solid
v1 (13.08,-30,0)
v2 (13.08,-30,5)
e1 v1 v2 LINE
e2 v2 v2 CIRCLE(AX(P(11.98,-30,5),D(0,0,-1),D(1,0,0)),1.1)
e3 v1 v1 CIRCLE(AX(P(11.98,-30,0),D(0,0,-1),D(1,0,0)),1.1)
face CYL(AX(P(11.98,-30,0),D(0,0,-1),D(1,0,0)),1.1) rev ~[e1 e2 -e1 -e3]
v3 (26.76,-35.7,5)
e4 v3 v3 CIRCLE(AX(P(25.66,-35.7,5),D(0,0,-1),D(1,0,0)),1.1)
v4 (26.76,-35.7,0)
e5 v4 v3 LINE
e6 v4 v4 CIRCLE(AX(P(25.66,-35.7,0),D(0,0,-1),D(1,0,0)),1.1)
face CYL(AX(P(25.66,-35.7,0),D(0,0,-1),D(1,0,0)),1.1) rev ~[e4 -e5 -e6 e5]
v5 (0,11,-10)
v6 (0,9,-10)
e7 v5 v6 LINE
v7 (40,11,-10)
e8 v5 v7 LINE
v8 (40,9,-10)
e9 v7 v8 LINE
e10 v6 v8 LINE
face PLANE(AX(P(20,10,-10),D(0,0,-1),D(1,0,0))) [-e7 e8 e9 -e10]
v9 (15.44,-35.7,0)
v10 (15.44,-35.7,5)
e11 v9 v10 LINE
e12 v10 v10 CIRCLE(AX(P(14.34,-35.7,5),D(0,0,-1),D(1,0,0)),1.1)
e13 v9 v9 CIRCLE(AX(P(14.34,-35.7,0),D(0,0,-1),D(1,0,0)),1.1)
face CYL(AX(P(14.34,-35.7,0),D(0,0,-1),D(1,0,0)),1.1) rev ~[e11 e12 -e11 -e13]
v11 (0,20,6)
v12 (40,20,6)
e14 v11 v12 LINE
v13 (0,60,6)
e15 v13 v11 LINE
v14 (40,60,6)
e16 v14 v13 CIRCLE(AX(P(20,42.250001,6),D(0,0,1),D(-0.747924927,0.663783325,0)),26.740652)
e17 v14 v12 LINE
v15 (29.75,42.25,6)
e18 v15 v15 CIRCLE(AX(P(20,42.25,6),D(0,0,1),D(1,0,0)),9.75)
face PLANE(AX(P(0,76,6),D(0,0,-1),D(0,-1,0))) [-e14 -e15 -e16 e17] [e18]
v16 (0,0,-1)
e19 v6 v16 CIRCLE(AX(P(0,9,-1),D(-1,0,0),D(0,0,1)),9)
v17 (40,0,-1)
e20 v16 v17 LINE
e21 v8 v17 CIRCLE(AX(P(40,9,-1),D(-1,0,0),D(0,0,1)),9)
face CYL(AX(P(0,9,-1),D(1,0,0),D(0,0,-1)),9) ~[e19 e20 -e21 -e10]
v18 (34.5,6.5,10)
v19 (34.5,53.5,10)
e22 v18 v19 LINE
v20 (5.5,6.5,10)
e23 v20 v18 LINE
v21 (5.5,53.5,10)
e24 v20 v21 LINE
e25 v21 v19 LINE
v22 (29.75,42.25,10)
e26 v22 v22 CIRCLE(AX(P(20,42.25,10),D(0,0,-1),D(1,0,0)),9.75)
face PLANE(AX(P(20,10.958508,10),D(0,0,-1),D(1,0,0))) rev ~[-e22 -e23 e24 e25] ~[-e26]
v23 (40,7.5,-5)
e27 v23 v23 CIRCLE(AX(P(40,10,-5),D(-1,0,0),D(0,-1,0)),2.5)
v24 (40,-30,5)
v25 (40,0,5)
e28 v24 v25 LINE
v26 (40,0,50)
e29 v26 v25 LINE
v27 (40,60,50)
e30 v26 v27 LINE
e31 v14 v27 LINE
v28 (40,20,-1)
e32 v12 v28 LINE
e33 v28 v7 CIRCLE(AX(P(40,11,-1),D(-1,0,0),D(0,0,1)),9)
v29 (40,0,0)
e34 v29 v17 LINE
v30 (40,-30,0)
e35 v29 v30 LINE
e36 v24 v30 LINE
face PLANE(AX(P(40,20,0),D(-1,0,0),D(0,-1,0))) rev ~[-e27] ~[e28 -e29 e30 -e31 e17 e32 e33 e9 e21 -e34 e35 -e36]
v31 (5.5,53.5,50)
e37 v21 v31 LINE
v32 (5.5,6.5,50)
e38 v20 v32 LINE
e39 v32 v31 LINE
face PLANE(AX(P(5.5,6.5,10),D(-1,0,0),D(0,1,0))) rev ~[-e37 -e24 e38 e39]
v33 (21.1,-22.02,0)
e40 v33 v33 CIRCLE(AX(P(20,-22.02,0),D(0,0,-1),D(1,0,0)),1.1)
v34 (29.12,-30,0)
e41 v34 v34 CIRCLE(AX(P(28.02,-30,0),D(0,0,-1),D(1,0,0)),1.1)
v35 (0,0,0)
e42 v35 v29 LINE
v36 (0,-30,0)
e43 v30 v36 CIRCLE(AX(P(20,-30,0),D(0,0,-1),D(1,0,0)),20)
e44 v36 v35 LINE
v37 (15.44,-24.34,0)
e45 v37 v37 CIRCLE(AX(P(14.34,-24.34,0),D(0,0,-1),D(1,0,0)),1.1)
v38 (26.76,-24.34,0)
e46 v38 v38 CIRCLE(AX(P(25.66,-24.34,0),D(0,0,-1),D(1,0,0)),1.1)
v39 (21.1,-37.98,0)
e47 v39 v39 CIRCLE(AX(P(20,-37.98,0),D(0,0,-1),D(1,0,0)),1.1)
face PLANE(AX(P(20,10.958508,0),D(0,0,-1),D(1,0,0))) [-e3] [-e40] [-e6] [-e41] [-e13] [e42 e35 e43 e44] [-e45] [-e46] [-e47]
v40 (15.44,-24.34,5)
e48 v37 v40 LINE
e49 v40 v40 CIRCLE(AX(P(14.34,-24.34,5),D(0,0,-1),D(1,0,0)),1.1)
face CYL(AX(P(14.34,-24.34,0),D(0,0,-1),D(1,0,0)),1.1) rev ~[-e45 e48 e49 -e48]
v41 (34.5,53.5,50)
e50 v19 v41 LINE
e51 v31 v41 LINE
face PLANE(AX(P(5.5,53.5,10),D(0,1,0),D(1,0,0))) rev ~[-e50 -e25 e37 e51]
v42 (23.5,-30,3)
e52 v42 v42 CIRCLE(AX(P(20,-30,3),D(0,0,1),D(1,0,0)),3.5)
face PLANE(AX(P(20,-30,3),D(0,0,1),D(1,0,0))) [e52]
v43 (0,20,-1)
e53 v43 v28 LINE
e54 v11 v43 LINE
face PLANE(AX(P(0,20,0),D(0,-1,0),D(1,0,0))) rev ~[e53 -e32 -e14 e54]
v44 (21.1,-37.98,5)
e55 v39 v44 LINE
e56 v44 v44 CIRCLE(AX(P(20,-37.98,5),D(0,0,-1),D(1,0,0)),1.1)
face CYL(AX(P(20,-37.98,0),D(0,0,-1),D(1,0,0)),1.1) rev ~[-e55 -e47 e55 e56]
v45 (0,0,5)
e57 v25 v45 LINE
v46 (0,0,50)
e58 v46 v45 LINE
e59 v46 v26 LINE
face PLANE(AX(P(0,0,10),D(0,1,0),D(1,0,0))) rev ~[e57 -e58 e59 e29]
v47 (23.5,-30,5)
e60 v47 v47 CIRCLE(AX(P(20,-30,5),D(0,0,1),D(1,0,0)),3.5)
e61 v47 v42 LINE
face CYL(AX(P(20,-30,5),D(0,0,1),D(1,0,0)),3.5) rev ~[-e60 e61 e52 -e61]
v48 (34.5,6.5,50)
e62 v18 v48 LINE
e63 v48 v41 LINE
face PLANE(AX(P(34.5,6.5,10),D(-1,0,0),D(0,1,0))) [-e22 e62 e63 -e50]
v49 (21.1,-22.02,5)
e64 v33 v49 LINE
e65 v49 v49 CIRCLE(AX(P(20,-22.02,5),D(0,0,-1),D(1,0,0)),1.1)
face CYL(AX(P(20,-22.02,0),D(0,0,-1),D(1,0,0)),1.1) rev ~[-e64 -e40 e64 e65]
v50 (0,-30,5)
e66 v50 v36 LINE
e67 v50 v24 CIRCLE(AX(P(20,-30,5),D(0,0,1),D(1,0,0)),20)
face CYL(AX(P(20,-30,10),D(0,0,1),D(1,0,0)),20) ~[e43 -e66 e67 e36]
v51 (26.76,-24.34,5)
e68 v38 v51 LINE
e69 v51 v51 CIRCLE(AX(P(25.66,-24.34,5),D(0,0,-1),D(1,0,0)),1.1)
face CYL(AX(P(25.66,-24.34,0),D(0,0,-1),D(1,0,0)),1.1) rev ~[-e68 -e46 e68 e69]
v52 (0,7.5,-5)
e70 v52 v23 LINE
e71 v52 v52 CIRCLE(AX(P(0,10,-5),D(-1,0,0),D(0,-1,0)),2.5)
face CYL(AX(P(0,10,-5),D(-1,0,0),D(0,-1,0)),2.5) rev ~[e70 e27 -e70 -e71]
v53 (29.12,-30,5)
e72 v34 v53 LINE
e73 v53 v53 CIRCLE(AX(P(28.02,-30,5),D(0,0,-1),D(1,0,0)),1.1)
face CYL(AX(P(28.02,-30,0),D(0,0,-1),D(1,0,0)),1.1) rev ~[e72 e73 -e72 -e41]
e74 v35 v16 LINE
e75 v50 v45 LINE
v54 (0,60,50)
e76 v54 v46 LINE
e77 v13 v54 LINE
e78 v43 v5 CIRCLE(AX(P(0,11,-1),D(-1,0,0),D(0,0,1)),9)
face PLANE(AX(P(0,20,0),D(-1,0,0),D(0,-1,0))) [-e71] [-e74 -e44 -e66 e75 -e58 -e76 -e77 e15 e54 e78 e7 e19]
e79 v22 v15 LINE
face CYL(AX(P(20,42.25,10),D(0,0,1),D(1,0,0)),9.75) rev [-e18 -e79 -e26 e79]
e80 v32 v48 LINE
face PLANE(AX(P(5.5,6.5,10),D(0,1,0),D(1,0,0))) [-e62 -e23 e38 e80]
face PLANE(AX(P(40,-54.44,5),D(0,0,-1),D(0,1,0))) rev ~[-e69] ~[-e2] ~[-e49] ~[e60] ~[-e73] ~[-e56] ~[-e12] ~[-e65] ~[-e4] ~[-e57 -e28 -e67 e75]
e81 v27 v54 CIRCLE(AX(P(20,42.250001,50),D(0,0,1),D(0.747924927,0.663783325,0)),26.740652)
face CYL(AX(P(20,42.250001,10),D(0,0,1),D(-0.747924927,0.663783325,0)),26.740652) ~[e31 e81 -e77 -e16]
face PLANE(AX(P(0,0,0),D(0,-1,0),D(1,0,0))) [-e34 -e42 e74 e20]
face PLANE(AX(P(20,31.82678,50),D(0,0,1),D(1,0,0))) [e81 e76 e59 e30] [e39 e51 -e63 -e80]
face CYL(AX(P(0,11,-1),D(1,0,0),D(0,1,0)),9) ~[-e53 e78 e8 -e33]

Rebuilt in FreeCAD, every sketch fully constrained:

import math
import FreeCAD as App
import Part
import Sketcher
from FreeCAD import Vector
Q = App.Units.Quantity


def edges_at(feature, points):
    """Names of the edges that pass closest to the given points."""
    edges = feature.Shape.Edges
    near = lambda p: min(range(len(edges)), key=lambda i: edges[i].distToShape(Part.Vertex(*p))[0])
    return sorted({f"Edge{near(p) + 1}" for p in points})

doc = App.newDocument("Part")
body = doc.addObject("PartDesign::Body", "Body")

# Sketch on XY plane
sketch1 = doc.addObject("Sketcher::SketchObject", "Sketch")
body.addObject(sketch1)
sketch1.AttachmentSupport = (doc.XY_Plane, [""])
sketch1.MapMode = "FlatFace"
sketch1.AttachmentOffset = App.Placement(Vector(0, 0, 10), App.Rotation())
sketch1.addGeometry(Part.LineSegment(Vector(0, 0, 0), Vector(40, 0, 0)), False)
sketch1.addGeometry(Part.LineSegment(Vector(40, 0, 0), Vector(40, 60, 0)), False)
sketch1.addGeometry(Part.ArcOfCircle(Part.Circle(Vector(20, 42, 0), Vector(0, 0, 1), 27), math.radians(42), math.radians(138)), False)
sketch1.addGeometry(Part.LineSegment(Vector(0, 60, 0), Vector(0, 0, 0)), False)
sketch1.addGeometry(Part.LineSegment(Vector(34, 6, 0), Vector(6, 6, 0)), False)
sketch1.addGeometry(Part.LineSegment(Vector(6, 6, 0), Vector(6, 54, 0)), False)
sketch1.addGeometry(Part.LineSegment(Vector(6, 54, 0), Vector(34, 54, 0)), False)
sketch1.addGeometry(Part.LineSegment(Vector(34, 54, 0), Vector(34, 6, 0)), False)
sketch1.addConstraint(Sketcher.Constraint("Coincident", 0, 2, 1, 1))
sketch1.addConstraint(Sketcher.Constraint("Coincident", 1, 2, 2, 1))
sketch1.addConstraint(Sketcher.Constraint("Coincident", 2, 2, 3, 1))
sketch1.addConstraint(Sketcher.Constraint("Coincident", 3, 2, 0, 1))
sketch1.addConstraint(Sketcher.Constraint("Coincident", 4, 2, 5, 1))
sketch1.addConstraint(Sketcher.Constraint("Coincident", 5, 2, 6, 1))
sketch1.addConstraint(Sketcher.Constraint("Coincident", 6, 2, 7, 1))
sketch1.addConstraint(Sketcher.Constraint("Coincident", 7, 2, 4, 1))
sketch1.addConstraint(Sketcher.Constraint("Horizontal", 0))
sketch1.addConstraint(Sketcher.Constraint("Vertical", 1))
sketch1.addConstraint(Sketcher.Constraint("Vertical", 3))
sketch1.addConstraint(Sketcher.Constraint("Horizontal", 4))
sketch1.addConstraint(Sketcher.Constraint("Vertical", 5))
sketch1.addConstraint(Sketcher.Constraint("Horizontal", 6))
sketch1.addConstraint(Sketcher.Constraint("Vertical", 7))
sketch1.addConstraint(Sketcher.Constraint("Coincident", 3, 2, -1, 1))
sketch1.addConstraint(Sketcher.Constraint("Horizontal", 1, 2, 2, 2))
sketch1.addConstraint(Sketcher.Constraint("DistanceX", 0, 1, 0, 2, Q("40 mm")))
sketch1.addConstraint(Sketcher.Constraint("DistanceX", 4, 2, 4, 1, Q("29 mm")))
sketch1.addConstraint(Sketcher.Constraint("DistanceY", 1, 1, 1, 2, Q("60 mm")))
sketch1.addConstraint(Sketcher.Constraint("DistanceY", 5, 1, 5, 2, Q("47 mm")))
sketch1.addConstraint(Sketcher.Constraint("DistanceX", -1, 1, 4, 2, Q("5.5 mm")))
sketch1.addConstraint(Sketcher.Constraint("DistanceY", -1, 1, 4, 2, Q("6.5 mm")))
sketch1.addConstraint(Sketcher.Constraint("DistanceY", -1, 1, 2, 3, Q("42.250001 mm")))
pad1 = doc.addObject("PartDesign::Pad", "Pad")
body.addObject(pad1)
pad1.Profile = sketch1
pad1.Length = 40

# Sketch on XY plane
sketch2 = doc.addObject("Sketcher::SketchObject", "Sketch001")
body.addObject(sketch2)
sketch2.AttachmentSupport = (doc.XY_Plane, [""])
sketch2.MapMode = "FlatFace"
sketch2.AttachmentOffset = App.Placement(Vector(0, 0, 10), App.Rotation())
sketch2.addGeometry(Part.LineSegment(Vector(40, 60, 0), Vector(40, -30, 0)), False)
sketch2.addGeometry(Part.ArcOfCircle(Part.Circle(Vector(20, -30, 0), Vector(0, 0, 1), 20), math.radians(180), math.radians(360)), False)
sketch2.addGeometry(Part.LineSegment(Vector(0, -30, 0), Vector(0, 60, 0)), False)
sketch2.addGeometry(Part.ArcOfCircle(Part.Circle(Vector(20, 42, 0), Vector(0, 0, 1), 27), math.radians(42), math.radians(138)), False)
sketch2.addGeometry(Part.Circle(Vector(20, 42, 0), Vector(0, 0, 1), 10), False)
sketch2.addConstraint(Sketcher.Constraint("Tangent", 0, 2, 1, 2))
sketch2.addConstraint(Sketcher.Constraint("Tangent", 1, 1, 2, 1))
sketch2.addConstraint(Sketcher.Constraint("Coincident", 2, 2, 3, 2))
sketch2.addConstraint(Sketcher.Constraint("Coincident", 3, 1, 0, 1))
sketch2.addConstraint(Sketcher.Constraint("Vertical", 0))
sketch2.addConstraint(Sketcher.Constraint("Vertical", 2))
sketch2.addConstraint(Sketcher.Constraint("Coincident", 4, 3, 3, 3))
sketch2.addConstraint(Sketcher.Constraint("PointOnObject", 1, 1, -2))
sketch2.addConstraint(Sketcher.Constraint("Horizontal", 2, 2, 3, 1))
sketch2.addConstraint(Sketcher.Constraint("Radius", 1, Q("20 mm")))
sketch2.addConstraint(Sketcher.Constraint("Diameter", 4, Q("19.5 mm")))
sketch2.addConstraint(Sketcher.Constraint("DistanceY", 0, 2, 0, 1, Q("90 mm")))
sketch2.addConstraint(Sketcher.Constraint("DistanceY", 1, 3, -1, 1, Q("30 mm")))
sketch2.addConstraint(Sketcher.Constraint("DistanceY", -1, 1, 3, 3, Q("42.250001 mm")))
pad2 = doc.addObject("PartDesign::Pad", "Pad001")
body.addObject(pad2)
pad2.Profile = sketch2
pad2.Length = 10
pad2.Reversed = True

# Sketch on YZ plane
sketch3 = doc.addObject("Sketcher::SketchObject", "Sketch002")
body.addObject(sketch3)
sketch3.AttachmentSupport = (doc.YZ_Plane, [""])
sketch3.MapMode = "FlatFace"
sketch3.addGeometry(Part.LineSegment(Vector(76, 6, 0), Vector(76, 0, 0)), False)
sketch3.addGeometry(Part.LineSegment(Vector(76, 0, 0), Vector(20, 0, 0)), False)
sketch3.addGeometry(Part.LineSegment(Vector(20, 0, 0), Vector(20, 6, 0)), False)
sketch3.addGeometry(Part.LineSegment(Vector(20, 6, 0), Vector(76, 6, 0)), False)
sketch3.addConstraint(Sketcher.Constraint("Coincident", 0, 2, 1, 1))
sketch3.addConstraint(Sketcher.Constraint("Coincident", 1, 2, 2, 1))
sketch3.addConstraint(Sketcher.Constraint("Coincident", 2, 2, 3, 1))
sketch3.addConstraint(Sketcher.Constraint("Coincident", 3, 2, 0, 1))
sketch3.addConstraint(Sketcher.Constraint("Vertical", 0))
sketch3.addConstraint(Sketcher.Constraint("Horizontal", 1))
sketch3.addConstraint(Sketcher.Constraint("Vertical", 2))
sketch3.addConstraint(Sketcher.Constraint("Horizontal", 3))
sketch3.addConstraint(Sketcher.Constraint("PointOnObject", 0, 2, -1))
sketch3.addConstraint(Sketcher.Constraint("DistanceX", 1, 2, 1, 1, Q("56 mm")))
sketch3.addConstraint(Sketcher.Constraint("DistanceY", 0, 2, 0, 1, Q("6 mm")))
sketch3.addConstraint(Sketcher.Constraint("DistanceX", -1, 1, 0, 2, Q("76 mm")))
pocket1 = doc.addObject("PartDesign::Pocket", "Pocket")
body.addObject(pocket1)
pocket1.Profile = sketch3
pocket1.Length = 100
pocket1.Reversed = True

# Sketch on YZ plane
sketch4 = doc.addObject("Sketcher::SketchObject", "Sketch003")
body.addObject(sketch4)
sketch4.AttachmentSupport = (doc.YZ_Plane, [""])
sketch4.MapMode = "FlatFace"
sketch4.AttachmentOffset = App.Placement(Vector(0, 0, 40), App.Rotation())
sketch4.addGeometry(Part.LineSegment(Vector(-54, 11, 0), Vector(-54, 5, 0)), False)
sketch4.addGeometry(Part.LineSegment(Vector(-54, 5, 0), Vector(0, 5, 0)), False)
sketch4.addGeometry(Part.LineSegment(Vector(0, 5, 0), Vector(0, 11, 0)), False)
sketch4.addGeometry(Part.LineSegment(Vector(0, 11, 0), Vector(-54, 11, 0)), False)
sketch4.addConstraint(Sketcher.Constraint("Coincident", 0, 2, 1, 1))
sketch4.addConstraint(Sketcher.Constraint("Coincident", 1, 2, 2, 1))
sketch4.addConstraint(Sketcher.Constraint("Coincident", 2, 2, 3, 1))
sketch4.addConstraint(Sketcher.Constraint("Coincident", 3, 2, 0, 1))
sketch4.addConstraint(Sketcher.Constraint("Vertical", 0))
sketch4.addConstraint(Sketcher.Constraint("Horizontal", 1))
sketch4.addConstraint(Sketcher.Constraint("Vertical", 2))
sketch4.addConstraint(Sketcher.Constraint("Horizontal", 3))
sketch4.addConstraint(Sketcher.Constraint("PointOnObject", 1, 2, -2))
sketch4.addConstraint(Sketcher.Constraint("DistanceY", -1, 1, 0, 2, Q("5 mm")))
sketch4.addConstraint(Sketcher.Constraint("DistanceX", 1, 1, 1, 2, Q("54.44 mm")))
sketch4.addConstraint(Sketcher.Constraint("DistanceY", 0, 2, 0, 1, Q("5.76 mm")))
pocket2 = doc.addObject("PartDesign::Pocket", "Pocket001")
body.addObject(pocket2)
pocket2.Profile = sketch4
pocket2.Type = "ThroughAll"

# Sketch on XY plane
sketch5 = doc.addObject("Sketcher::SketchObject", "Sketch004")
body.addObject(sketch5)
sketch5.AttachmentSupport = (doc.XY_Plane, [""])
sketch5.MapMode = "FlatFace"
sketch5.addGeometry(Part.Circle(Vector(12, -30, 0), Vector(0, 0, 1), 1.1), False)
sketch5.addGeometry(Part.Circle(Vector(14.3, -35.7, 0), Vector(0, 0, 1), 1.1), False)
sketch5.addGeometry(Part.Circle(Vector(20, -38, 0), Vector(0, 0, 1), 1.1), False)
sketch5.addGeometry(Part.Circle(Vector(25.7, -35.7, 0), Vector(0, 0, 1), 1.1), False)
sketch5.addGeometry(Part.Circle(Vector(28, -30, 0), Vector(0, 0, 1), 1.1), False)
sketch5.addGeometry(Part.Circle(Vector(25.7, -24.3, 0), Vector(0, 0, 1), 1.1), False)
sketch5.addGeometry(Part.Circle(Vector(20, -22, 0), Vector(0, 0, 1), 1.1), False)
sketch5.addGeometry(Part.Circle(Vector(14.3, -24.3, 0), Vector(0, 0, 1), 1.1), False)
sketch5.addConstraint(Sketcher.Constraint("Equal", 0, 1))
sketch5.addConstraint(Sketcher.Constraint("Equal", 1, 2))
sketch5.addConstraint(Sketcher.Constraint("Equal", 2, 3))
sketch5.addConstraint(Sketcher.Constraint("Equal", 3, 4))
sketch5.addConstraint(Sketcher.Constraint("Equal", 4, 5))
sketch5.addConstraint(Sketcher.Constraint("Equal", 5, 6))
sketch5.addConstraint(Sketcher.Constraint("Equal", 6, 7))
sketch5.addConstraint(Sketcher.Constraint("Horizontal", 1, 3, 3, 3))
sketch5.addConstraint(Sketcher.Constraint("Horizontal", 0, 3, 4, 3))
sketch5.addConstraint(Sketcher.Constraint("Horizontal", 5, 3, 7, 3))
sketch5.addConstraint(Sketcher.Constraint("Vertical", 3, 3, 5, 3))
sketch5.addConstraint(Sketcher.Constraint("Vertical", 2, 3, 6, 3))
sketch5.addConstraint(Sketcher.Constraint("Vertical", 1, 3, 7, 3))
sketch5.addConstraint(Sketcher.Constraint("Diameter", 0, Q("2.2 mm")))
sketch5.addConstraint(Sketcher.Constraint("DistanceY", 0, 3, -1, 1, Q("30 mm")))
sketch5.addConstraint(Sketcher.Constraint("DistanceX", -1, 1, 2, 3, Q("20 mm")))
sketch5.addConstraint(Sketcher.Constraint("DistanceY", 1, 3, -1, 1, Q("35.7 mm")))
sketch5.addConstraint(Sketcher.Constraint("DistanceX", -1, 1, 0, 3, Q("11.98 mm")))
sketch5.addConstraint(Sketcher.Constraint("DistanceX", -1, 1, 1, 3, Q("14.34 mm")))
sketch5.addConstraint(Sketcher.Constraint("DistanceY", 2, 3, -1, 1, Q("37.98 mm")))
sketch5.addConstraint(Sketcher.Constraint("DistanceX", -1, 1, 3, 3, Q("25.66 mm")))
sketch5.addConstraint(Sketcher.Constraint("DistanceX", -1, 1, 4, 3, Q("28.02 mm")))
sketch5.addConstraint(Sketcher.Constraint("DistanceY", 5, 3, -1, 1, Q("24.34 mm")))
sketch5.addConstraint(Sketcher.Constraint("DistanceY", 6, 3, -1, 1, Q("22.02 mm")))
pocket3 = doc.addObject("PartDesign::Pocket", "Pocket002")
body.addObject(pocket3)
pocket3.Profile = sketch5
pocket3.Length = 5
pocket3.Reversed = True

# Sketch on XY plane
sketch6 = doc.addObject("Sketcher::SketchObject", "Sketch005")
body.addObject(sketch6)
sketch6.AttachmentSupport = (doc.XY_Plane, [""])
sketch6.MapMode = "FlatFace"
sketch6.AttachmentOffset = App.Placement(Vector(0, 0, 5), App.Rotation())
sketch6.addGeometry(Part.Circle(Vector(20, -30, 0), Vector(0, 0, 1), 3.5), False)
sketch6.addConstraint(Sketcher.Constraint("Diameter", 0, Q("7 mm")))
sketch6.addConstraint(Sketcher.Constraint("DistanceX", -1, 1, 0, 3, Q("20 mm")))
sketch6.addConstraint(Sketcher.Constraint("DistanceY", 0, 3, -1, 1, Q("30 mm")))
pocket4 = doc.addObject("PartDesign::Pocket", "Pocket003")
body.addObject(pocket4)
pocket4.Profile = sketch6
pocket4.Length = 2

# Sketch on XY plane
sketch7 = doc.addObject("Sketcher::SketchObject", "Sketch006")
body.addObject(sketch7)
sketch7.AttachmentSupport = (doc.XY_Plane, [""])
sketch7.MapMode = "FlatFace"
sketch7.addGeometry(Part.LineSegment(Vector(0, 0, 0), Vector(0, 20, 0)), False)
sketch7.addGeometry(Part.LineSegment(Vector(0, 20, 0), Vector(40, 20, 0)), False)
sketch7.addGeometry(Part.LineSegment(Vector(40, 20, 0), Vector(40, 0, 0)), False)
sketch7.addGeometry(Part.LineSegment(Vector(40, 0, 0), Vector(0, 0, 0)), False)
sketch7.addConstraint(Sketcher.Constraint("Coincident", 0, 2, 1, 1))
sketch7.addConstraint(Sketcher.Constraint("Coincident", 1, 2, 2, 1))
sketch7.addConstraint(Sketcher.Constraint("Coincident", 2, 2, 3, 1))
sketch7.addConstraint(Sketcher.Constraint("Coincident", 3, 2, 0, 1))
sketch7.addConstraint(Sketcher.Constraint("Vertical", 0))
sketch7.addConstraint(Sketcher.Constraint("Horizontal", 1))
sketch7.addConstraint(Sketcher.Constraint("Vertical", 2))
sketch7.addConstraint(Sketcher.Constraint("Horizontal", 3))
sketch7.addConstraint(Sketcher.Constraint("Coincident", 3, 2, -1, 1))
sketch7.addConstraint(Sketcher.Constraint("DistanceX", 1, 1, 1, 2, Q("40 mm")))
sketch7.addConstraint(Sketcher.Constraint("DistanceY", 0, 1, 0, 2, Q("20 mm")))
pad3 = doc.addObject("PartDesign::Pad", "Pad002")
body.addObject(pad3)
pad3.Profile = sketch7
pad3.Length = 10
pad3.Reversed = True
doc.recompute()

fillet = doc.addObject("PartDesign::Fillet", "Fillet")
body.addObject(fillet)
fillet.Base = (pad3, edges_at(pad3, [(20, 20, -10)]))
fillet.Radius = 9
doc.recompute()

fillet2 = doc.addObject("PartDesign::Fillet", "Fillet001")
body.addObject(fillet2)
fillet2.Base = (fillet, edges_at(fillet, [(20, 0, -10)]))
fillet2.Radius = 9

# Sketch on YZ plane
sketch8 = doc.addObject("Sketcher::SketchObject", "Sketch007")
body.addObject(sketch8)
sketch8.AttachmentSupport = (doc.YZ_Plane, [""])
sketch8.MapMode = "FlatFace"
sketch8.addGeometry(Part.Circle(Vector(10, -5, 0), Vector(0, 0, 1), 2.5), False)
sketch8.addConstraint(Sketcher.Constraint("Diameter", 0, Q("5 mm")))
sketch8.addConstraint(Sketcher.Constraint("DistanceX", -1, 1, 0, 3, Q("10 mm")))
sketch8.addConstraint(Sketcher.Constraint("DistanceY", 0, 3, -1, 1, Q("5 mm")))
pocket5 = doc.addObject("PartDesign::Pocket", "Pocket004")
body.addObject(pocket5)
pocket5.Profile = sketch8
pocket5.Type = "ThroughAll"
pocket5.Reversed = True

doc.recompute()
